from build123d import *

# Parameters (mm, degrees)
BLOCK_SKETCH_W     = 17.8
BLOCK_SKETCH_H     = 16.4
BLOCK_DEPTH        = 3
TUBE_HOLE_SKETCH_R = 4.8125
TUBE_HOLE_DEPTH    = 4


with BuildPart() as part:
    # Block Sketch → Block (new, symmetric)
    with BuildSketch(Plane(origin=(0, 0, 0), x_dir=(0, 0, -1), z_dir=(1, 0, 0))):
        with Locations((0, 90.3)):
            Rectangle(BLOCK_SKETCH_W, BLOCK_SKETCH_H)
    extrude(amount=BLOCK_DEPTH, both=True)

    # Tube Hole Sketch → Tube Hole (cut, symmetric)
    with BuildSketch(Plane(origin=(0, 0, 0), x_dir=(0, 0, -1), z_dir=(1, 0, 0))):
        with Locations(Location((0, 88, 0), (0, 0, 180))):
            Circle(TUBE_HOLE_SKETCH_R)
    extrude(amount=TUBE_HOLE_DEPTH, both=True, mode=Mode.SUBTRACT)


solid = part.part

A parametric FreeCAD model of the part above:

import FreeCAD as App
import Part
import Sketcher

V = App.Vector
Q = App.Units.Quantity

doc = App.newDocument("Part")
params = doc.addObject("Spreadsheet::Sheet", "Params")
for row, (alias, value) in enumerate([
    ("sketch1_width", "16.4 mm"),
    ("sketch1_height", "17.8 mm"),
    ("pad1_length", "6 mm"),
    ("pocket1_length", "8 mm"),
], start=1):
    params.set(f"A{row}", alias)
    params.set(f"B{row}", "=" + value)
    params.setAlias(f"B{row}", alias)

body = doc.addObject("PartDesign::Body", "Body")

# Sketch on YZ plane
sketch1 = body.newObject("Sketcher::SketchObject", "Sketch")
sketch1.AttachmentSupport = (doc.getObject("YZ_Plane"), [""])
sketch1.MapMode = "FlatFace"
sketch1.addGeometry([
    Part.LineSegment(V(98, 9, 0), V(82, 9, 0)),
    Part.LineSegment(V(82, 9, 0), V(82, -9, 0)),
    Part.LineSegment(V(82, -9, 0), V(98, -9, 0)),
    Part.LineSegment(V(98, -9, 0), V(98, 9, 0)),
], False)
sketch1.addConstraint([
    Sketcher.Constraint("Coincident", 0, 2, 1, 1),
    Sketcher.Constraint("Coincident", 1, 2, 2, 1),
    Sketcher.Constraint("Coincident", 2, 2, 3, 1),
    Sketcher.Constraint("Coincident", 3, 2, 0, 1),
    Sketcher.Constraint("Horizontal", 0),
    Sketcher.Constraint("Vertical", 1),
    Sketcher.Constraint("Horizontal", 2),
    Sketcher.Constraint("Vertical", 3),
    Sketcher.Constraint("DistanceX", 0, 2, 0, 1, Q("16.4 mm")),
    Sketcher.Constraint("DistanceY", 1, 2, 1, 1, Q("17.8 mm")),
    Sketcher.Constraint("DistanceX", -1, 1, 0, 2, Q("82.1 mm")),
    Sketcher.Constraint("DistanceY", -1, 1, 0, 2, Q("8.9 mm")),
])
sketch1.setExpression("Constraints[8]", "Params.sketch1_width")
sketch1.setExpression("Constraints[9]", "Params.sketch1_height")
pad1 = body.newObject("PartDesign::Pad", "Pad")
pad1.Profile = sketch1
pad1.setExpression("Length", "Params.pad1_length")
pad1.Midplane = True

# Sketch on YZ plane
sketch2 = body.newObject("Sketcher::SketchObject", "Sketch001")
sketch2.AttachmentSupport = (doc.getObject("YZ_Plane"), [""])
sketch2.MapMode = "FlatFace"
sketch2.addGeometry(Part.Circle(V(88, 0, 0), V(0, 0, 1), 4.8), False)
sketch2.addConstraint([
    Sketcher.Constraint("PointOnObject", 0, 3, -1),
    Sketcher.Constraint("Diameter", 0, Q("9.625 mm")),
    Sketcher.Constraint("DistanceX", -1, 1, 0, 3, Q("88 mm")),
])
pocket1 = body.newObject("PartDesign::Pocket", "Pocket")
pocket1.Profile = sketch2
pocket1.setExpression("Length", "Params.pocket1_length")
pocket1.Midplane = True

doc.recompute()
